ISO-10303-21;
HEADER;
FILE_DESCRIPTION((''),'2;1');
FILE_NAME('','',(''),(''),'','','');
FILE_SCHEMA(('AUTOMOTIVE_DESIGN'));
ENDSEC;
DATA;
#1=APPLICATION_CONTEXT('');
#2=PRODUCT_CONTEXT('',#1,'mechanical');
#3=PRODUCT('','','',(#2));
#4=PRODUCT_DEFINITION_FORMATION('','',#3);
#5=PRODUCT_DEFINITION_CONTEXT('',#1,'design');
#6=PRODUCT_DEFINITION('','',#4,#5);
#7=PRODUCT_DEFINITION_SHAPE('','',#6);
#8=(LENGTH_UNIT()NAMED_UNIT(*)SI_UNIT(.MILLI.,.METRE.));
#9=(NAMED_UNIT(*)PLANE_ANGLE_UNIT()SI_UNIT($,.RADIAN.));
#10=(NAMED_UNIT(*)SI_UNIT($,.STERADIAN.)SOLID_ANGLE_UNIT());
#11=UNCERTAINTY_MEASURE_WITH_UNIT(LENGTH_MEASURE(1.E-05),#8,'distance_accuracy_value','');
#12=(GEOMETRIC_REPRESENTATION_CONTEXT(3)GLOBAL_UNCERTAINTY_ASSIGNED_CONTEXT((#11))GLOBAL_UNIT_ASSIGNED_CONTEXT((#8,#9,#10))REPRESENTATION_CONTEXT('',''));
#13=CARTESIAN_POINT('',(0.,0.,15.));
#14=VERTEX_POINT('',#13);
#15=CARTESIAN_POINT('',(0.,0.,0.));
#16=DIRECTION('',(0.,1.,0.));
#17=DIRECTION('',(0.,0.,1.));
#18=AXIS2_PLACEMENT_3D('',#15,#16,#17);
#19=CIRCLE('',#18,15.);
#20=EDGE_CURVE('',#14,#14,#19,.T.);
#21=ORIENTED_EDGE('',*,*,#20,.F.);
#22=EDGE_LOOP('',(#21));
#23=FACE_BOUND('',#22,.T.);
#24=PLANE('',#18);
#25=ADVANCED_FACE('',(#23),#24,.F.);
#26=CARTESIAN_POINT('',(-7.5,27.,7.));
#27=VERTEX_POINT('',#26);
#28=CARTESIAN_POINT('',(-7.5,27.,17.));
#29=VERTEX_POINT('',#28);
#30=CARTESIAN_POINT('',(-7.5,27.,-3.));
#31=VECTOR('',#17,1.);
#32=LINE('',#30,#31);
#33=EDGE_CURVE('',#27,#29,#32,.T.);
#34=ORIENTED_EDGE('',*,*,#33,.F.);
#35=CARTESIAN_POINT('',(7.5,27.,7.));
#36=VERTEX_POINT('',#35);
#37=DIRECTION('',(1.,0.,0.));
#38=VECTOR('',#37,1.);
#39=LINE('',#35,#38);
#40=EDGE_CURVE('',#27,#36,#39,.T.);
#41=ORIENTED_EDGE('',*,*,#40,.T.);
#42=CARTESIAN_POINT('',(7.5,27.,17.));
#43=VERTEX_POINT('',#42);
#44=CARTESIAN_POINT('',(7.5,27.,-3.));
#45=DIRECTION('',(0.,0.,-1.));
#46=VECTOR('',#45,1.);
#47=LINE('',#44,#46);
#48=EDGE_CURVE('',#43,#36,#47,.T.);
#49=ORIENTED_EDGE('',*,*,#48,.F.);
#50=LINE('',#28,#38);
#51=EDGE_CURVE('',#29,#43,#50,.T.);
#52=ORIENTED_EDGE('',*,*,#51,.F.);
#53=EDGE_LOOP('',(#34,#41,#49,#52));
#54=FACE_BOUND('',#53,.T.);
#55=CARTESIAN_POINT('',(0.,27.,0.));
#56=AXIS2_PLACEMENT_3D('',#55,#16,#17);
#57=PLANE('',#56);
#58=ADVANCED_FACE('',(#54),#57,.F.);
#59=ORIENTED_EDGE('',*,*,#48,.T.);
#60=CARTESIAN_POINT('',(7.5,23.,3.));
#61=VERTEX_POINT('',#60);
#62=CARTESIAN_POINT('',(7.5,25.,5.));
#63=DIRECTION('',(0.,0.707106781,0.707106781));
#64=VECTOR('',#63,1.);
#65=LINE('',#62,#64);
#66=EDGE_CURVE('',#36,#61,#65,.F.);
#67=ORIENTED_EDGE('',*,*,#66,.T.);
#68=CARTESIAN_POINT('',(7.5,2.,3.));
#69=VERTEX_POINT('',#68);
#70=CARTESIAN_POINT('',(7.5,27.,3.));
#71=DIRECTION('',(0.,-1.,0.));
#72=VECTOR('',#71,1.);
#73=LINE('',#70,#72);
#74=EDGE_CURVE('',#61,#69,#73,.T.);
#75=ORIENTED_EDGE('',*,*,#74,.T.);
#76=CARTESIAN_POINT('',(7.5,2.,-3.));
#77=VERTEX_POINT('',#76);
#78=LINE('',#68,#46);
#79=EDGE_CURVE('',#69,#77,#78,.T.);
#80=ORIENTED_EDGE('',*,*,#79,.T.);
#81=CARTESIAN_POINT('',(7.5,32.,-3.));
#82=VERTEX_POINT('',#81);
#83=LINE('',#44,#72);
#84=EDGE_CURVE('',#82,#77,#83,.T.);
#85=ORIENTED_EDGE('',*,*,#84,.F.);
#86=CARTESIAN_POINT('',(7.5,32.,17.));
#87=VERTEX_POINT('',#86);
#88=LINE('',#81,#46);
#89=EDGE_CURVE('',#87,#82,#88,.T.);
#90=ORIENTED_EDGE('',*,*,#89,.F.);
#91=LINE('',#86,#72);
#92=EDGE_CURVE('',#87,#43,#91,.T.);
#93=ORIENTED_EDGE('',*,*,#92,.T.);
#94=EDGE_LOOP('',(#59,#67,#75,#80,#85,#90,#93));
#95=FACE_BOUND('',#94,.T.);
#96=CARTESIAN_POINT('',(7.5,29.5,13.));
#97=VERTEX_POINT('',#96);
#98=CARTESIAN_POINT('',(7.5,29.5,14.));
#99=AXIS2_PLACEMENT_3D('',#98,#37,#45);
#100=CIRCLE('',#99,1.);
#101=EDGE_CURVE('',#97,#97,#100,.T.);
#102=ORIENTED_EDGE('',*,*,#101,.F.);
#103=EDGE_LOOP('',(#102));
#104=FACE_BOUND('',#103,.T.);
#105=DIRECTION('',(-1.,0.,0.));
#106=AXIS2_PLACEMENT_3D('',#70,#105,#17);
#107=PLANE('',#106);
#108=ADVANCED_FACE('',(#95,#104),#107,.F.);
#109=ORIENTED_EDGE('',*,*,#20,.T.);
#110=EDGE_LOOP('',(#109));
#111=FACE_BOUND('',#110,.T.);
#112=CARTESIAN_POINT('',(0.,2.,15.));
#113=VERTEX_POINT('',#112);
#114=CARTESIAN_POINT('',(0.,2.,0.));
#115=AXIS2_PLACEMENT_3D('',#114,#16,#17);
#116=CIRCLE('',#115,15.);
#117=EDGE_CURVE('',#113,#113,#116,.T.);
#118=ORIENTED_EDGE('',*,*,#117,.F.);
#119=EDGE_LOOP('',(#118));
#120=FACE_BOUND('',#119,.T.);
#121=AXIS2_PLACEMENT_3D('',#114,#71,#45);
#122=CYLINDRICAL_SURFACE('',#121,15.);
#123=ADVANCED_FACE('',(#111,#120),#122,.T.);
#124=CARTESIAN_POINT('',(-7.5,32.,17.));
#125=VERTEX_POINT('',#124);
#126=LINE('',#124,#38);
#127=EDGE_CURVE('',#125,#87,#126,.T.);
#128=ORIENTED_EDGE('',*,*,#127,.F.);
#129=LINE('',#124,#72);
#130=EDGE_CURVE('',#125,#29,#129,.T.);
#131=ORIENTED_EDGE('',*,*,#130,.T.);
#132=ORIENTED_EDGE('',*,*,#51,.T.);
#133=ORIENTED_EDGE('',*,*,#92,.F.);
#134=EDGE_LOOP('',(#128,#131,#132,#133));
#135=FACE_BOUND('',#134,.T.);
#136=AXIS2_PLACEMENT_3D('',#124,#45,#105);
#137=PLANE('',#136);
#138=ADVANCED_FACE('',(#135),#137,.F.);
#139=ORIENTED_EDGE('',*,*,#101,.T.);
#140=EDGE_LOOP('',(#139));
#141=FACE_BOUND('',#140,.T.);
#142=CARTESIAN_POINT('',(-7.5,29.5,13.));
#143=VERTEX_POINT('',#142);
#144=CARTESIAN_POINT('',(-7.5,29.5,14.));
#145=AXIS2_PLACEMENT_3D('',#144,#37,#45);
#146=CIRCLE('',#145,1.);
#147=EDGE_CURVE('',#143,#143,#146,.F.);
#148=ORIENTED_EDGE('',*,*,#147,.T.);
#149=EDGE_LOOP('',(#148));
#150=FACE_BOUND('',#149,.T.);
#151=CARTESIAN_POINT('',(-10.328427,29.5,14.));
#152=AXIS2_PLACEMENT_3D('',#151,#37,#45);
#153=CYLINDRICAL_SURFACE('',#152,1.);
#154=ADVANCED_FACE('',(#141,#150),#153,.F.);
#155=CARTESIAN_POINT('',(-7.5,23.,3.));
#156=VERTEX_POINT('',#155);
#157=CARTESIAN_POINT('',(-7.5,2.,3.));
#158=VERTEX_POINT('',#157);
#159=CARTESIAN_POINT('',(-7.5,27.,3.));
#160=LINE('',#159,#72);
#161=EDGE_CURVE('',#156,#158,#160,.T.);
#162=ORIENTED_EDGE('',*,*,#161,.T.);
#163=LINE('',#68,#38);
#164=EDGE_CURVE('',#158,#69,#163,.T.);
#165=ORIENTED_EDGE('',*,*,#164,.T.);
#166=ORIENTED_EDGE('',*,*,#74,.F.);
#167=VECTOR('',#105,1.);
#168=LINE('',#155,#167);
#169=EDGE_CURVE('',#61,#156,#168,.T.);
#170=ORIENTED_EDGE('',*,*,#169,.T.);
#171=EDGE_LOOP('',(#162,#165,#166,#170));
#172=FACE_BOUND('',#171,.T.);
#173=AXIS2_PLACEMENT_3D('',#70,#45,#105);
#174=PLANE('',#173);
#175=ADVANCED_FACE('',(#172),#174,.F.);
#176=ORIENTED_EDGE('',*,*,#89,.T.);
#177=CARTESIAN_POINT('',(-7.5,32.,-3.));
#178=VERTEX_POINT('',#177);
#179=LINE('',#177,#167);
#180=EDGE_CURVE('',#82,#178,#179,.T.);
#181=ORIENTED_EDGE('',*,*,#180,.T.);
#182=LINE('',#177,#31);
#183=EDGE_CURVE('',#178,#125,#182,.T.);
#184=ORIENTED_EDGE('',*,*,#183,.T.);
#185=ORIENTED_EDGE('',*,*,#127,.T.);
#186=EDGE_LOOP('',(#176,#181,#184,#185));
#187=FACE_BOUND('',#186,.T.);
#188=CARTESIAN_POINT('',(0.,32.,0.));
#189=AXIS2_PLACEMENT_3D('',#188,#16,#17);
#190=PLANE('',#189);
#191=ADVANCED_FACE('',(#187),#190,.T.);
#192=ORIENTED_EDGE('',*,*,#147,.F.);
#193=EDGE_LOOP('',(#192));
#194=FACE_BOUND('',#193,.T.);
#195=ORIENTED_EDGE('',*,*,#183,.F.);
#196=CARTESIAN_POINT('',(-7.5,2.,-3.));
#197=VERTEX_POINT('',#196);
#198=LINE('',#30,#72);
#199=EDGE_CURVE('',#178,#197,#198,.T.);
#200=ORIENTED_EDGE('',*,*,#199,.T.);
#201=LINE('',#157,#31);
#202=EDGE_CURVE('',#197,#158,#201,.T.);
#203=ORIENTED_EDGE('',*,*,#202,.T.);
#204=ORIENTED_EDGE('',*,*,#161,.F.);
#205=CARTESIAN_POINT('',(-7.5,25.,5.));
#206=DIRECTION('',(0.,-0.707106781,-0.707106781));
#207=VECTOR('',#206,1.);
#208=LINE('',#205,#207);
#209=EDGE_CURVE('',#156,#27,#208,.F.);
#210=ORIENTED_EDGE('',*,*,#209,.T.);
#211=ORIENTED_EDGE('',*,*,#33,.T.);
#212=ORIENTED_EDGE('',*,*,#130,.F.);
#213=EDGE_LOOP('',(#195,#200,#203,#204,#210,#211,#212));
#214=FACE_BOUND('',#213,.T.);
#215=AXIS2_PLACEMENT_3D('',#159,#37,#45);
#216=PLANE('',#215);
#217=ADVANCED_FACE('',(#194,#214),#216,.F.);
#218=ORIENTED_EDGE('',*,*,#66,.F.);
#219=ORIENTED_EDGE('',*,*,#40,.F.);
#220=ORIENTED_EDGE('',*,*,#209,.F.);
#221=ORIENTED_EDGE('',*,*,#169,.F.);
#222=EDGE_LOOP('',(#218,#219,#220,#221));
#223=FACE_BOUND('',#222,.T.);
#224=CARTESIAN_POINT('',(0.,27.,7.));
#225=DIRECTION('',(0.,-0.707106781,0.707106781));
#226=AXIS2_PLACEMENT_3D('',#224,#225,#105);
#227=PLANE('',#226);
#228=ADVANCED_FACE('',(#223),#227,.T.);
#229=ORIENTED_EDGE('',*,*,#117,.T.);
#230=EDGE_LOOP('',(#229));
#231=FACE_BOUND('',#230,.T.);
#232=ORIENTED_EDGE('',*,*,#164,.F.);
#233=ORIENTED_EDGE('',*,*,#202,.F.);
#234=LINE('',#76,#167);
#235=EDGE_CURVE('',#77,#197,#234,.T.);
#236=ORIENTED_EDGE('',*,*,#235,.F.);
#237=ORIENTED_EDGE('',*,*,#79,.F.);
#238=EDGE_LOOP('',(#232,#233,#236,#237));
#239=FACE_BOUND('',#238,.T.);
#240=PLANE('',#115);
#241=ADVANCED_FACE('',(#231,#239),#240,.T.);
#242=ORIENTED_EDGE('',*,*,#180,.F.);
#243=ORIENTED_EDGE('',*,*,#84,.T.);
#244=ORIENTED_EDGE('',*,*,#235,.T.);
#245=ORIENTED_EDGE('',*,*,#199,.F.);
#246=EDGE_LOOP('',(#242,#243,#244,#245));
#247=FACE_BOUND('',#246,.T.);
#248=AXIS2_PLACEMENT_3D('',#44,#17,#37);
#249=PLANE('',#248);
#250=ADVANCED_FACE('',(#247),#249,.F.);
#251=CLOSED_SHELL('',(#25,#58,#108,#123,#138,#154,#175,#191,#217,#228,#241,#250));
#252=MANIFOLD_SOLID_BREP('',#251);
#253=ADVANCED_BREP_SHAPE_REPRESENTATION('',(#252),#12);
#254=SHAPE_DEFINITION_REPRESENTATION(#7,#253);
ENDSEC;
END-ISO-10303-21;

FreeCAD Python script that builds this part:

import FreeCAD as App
import Part
import Sketcher


def edges_at(feature, points):
    """Names of the edges that pass closest to the given points."""
    edges = feature.Shape.Edges
    near = lambda p: min(range(len(edges)), key=lambda i: edges[i].distToShape(Part.Vertex(*p))[0])
    return sorted({f"Edge{near(p) + 1}" for p in points})


def add_polygon(sketch, points):
    """Adds a closed chain of lines whose ends are joined by coincident constraints."""
    first, n = sketch.GeometryCount, len(points)
    for a, b in zip(points, points[1:] + points[:1]):
        sketch.addGeometry(Part.LineSegment(App.Vector(*a, 0), App.Vector(*b, 0)), False)
    for i in range(n):
        sketch.addConstraint(Sketcher.Constraint("Coincident", first + i, 2, first + (i + 1) % n, 1))

doc = App.newDocument("Part")
params = doc.addObject("Spreadsheet::Sheet", "Params")
for row, (alias, value) in enumerate([
    ("sketch1_diameter", "30 mm"),
    ("pad1_length", "2 mm"),
    ("sketch2_width", "15 mm"),
    ("sketch2_height", "6 mm"),
    ("pad2_length", "25 mm"),
    ("sketch3_width", "15 mm"),
    ("sketch3_height", "20 mm"),
    ("pad3_length", "5 mm"),
    ("chamfer_size", "4 mm"),
    ("sketch4_diameter", "2 mm"),
    ("pocket1_length", "15 mm"),
], start=1):
    params.set(f"A{row}", alias)
    params.set(f"B{row}", "=" + value)
    params.setAlias(f"B{row}", alias)

body = doc.addObject("PartDesign::Body", "Body")

# Sketch on XZ plane
sketch1 = doc.addObject("Sketcher::SketchObject", "Sketch")
body.addObject(sketch1)
sketch1.AttachmentSupport = (doc.XZ_Plane, [""])
sketch1.MapMode = "FlatFace"
sketch1.addGeometry(Part.Circle(App.Vector(0, 0, 0), App.Vector(0, 0, 1), 15), False)
sketch1.addConstraint([
    Sketcher.Constraint("Coincident", 0, 3, -1, 1),
    Sketcher.Constraint("Diameter", 0, 30.0),
])
sketch1.setExpression("Constraints[1]", "Params.sketch1_diameter")
pad1 = doc.addObject("PartDesign::Pad", "Pad")
body.addObject(pad1)
pad1.Profile = sketch1
pad1.setExpression("Length", "Params.pad1_length")
pad1.Reversed = True

# Sketch on XZ plane
sketch2 = doc.addObject("Sketcher::SketchObject", "Sketch001")
body.addObject(sketch2)
sketch2.AttachmentSupport = (doc.XZ_Plane, [""])
sketch2.MapMode = "FlatFace"
sketch2.AttachmentOffset = App.Placement(App.Vector(0, 0, -2), App.Rotation())
add_polygon(sketch2, [(-8, -3), (-8, 3), (8, 3), (8, -3)])  # lines 0-3
sketch2.addConstraint([
    Sketcher.Constraint("Vertical", 0),
    Sketcher.Constraint("Horizontal", 1),
    Sketcher.Constraint("Vertical", 2),
    Sketcher.Constraint("Horizontal", 3),
    Sketcher.Constraint("Symmetric", 0, 2, 2, 2, -1, 1),
    Sketcher.Constraint("DistanceX", 1, 1, 1, 2, 15.0),
    Sketcher.Constraint("DistanceY", 0, 1, 0, 2, 6.0),
])
sketch2.setExpression("Constraints[9]", "Params.sketch2_width")
sketch2.setExpression("Constraints[10]", "Params.sketch2_height")
pad2 = doc.addObject("PartDesign::Pad", "Pad001")
body.addObject(pad2)
pad2.Profile = sketch2
pad2.setExpression("Length", "Params.pad2_length")
pad2.Reversed = True

# Sketch on XZ plane
sketch3 = doc.addObject("Sketcher::SketchObject", "Sketch002")
body.addObject(sketch3)
sketch3.AttachmentSupport = (doc.XZ_Plane, [""])
sketch3.MapMode = "FlatFace"
sketch3.AttachmentOffset = App.Placement(App.Vector(0, 0, -27), App.Rotation())
add_polygon(sketch3, [(-8, -3), (-8, 17), (8, 17), (8, -3)])  # lines 0-3
sketch3.addConstraint([
    Sketcher.Constraint("Vertical", 0),
    Sketcher.Constraint("Horizontal", 1),
    Sketcher.Constraint("Vertical", 2),
    Sketcher.Constraint("Horizontal", 3),
    Sketcher.Constraint("DistanceX", 1, 1, 1, 2, 15.0),
    Sketcher.Constraint("DistanceY", 0, 1, 0, 2, 20.0),
    Sketcher.Constraint("DistanceY", -1, 1, 0, 2, 17.0),
    Sketcher.Constraint("DistanceX", 0, 2, -1, 1, 7.5),
])
sketch3.setExpression("Constraints[8]", "Params.sketch3_width")
sketch3.setExpression("Constraints[9]", "Params.sketch3_height")
pad3 = doc.addObject("PartDesign::Pad", "Pad002")
body.addObject(pad3)
pad3.Profile = sketch3
pad3.setExpression("Length", "Params.pad3_length")
pad3.Reversed = True
doc.recompute()

chamfer = doc.addObject("PartDesign::Chamfer", "Chamfer")
body.addObject(chamfer)
chamfer.Base = (pad3, edges_at(pad3, [(0, 27, 3)]))
chamfer.setExpression("Size", "Params.chamfer_size")

# Sketch on YZ plane
sketch4 = doc.addObject("Sketcher::SketchObject", "Sketch003")
body.addObject(sketch4)
sketch4.AttachmentSupport = (doc.YZ_Plane, [""])
sketch4.MapMode = "FlatFace"
sketch4.AttachmentOffset = App.Placement(App.Vector(0, 0, 7.5), App.Rotation())
sketch4.addGeometry(Part.Circle(App.Vector(29.5, 14, 0), App.Vector(0, 0, 1), 1), False)
sketch4.addConstraint([
    Sketcher.Constraint("Diameter", 0, 2.0),
    Sketcher.Constraint("DistanceY", -1, 1, 0, 3, 14.0),
    Sketcher.Constraint("DistanceX", -1, 1, 0, 3, 29.5),
])
sketch4.setExpression("Constraints[0]", "Params.sketch4_diameter")
pocket1 = doc.addObject("PartDesign::Pocket", "Pocket")
body.addObject(pocket1)
pocket1.Profile = sketch4
pocket1.setExpression("Length", "Params.pocket1_length")

doc.recompute()
